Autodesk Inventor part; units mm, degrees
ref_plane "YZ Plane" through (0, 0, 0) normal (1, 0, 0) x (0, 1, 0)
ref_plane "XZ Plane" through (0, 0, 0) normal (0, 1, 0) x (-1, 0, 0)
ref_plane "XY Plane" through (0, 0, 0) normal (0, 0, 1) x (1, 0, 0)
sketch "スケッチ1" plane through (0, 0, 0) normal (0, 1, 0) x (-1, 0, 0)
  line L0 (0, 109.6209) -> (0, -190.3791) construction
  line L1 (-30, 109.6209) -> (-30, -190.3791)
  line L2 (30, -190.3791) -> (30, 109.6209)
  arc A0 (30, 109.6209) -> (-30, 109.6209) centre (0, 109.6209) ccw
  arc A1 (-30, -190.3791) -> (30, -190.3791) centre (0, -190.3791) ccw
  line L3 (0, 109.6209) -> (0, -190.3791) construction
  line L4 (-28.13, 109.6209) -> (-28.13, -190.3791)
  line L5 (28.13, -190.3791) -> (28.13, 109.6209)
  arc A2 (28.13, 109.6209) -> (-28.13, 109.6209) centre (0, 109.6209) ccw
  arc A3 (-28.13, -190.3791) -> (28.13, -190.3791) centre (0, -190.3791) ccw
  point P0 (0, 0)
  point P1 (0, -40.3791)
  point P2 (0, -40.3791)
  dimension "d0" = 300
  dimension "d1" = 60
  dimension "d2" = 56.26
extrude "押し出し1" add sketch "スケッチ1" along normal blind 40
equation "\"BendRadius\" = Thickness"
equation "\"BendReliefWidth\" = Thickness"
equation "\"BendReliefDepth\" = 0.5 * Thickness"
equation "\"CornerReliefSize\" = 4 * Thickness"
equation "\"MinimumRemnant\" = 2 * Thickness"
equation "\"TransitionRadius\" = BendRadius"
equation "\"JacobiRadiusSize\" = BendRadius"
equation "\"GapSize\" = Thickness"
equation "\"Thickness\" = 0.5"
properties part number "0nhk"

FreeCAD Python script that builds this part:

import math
import FreeCAD as App
import Part
import Sketcher
from FreeCAD import Vector

doc = App.newDocument("Part")
params = doc.addObject("Spreadsheet::Sheet", "Params")
for row, (alias, value) in enumerate([
    ("sketch1_radius", "30 mm"),
    ("sketch1_height", "300 mm"),
    ("sketch1_radius2", "28.13 mm"),
    ("pad1_length", "40 mm"),
], start=1):
    params.set(f"A{row}", alias)
    params.set(f"B{row}", "=" + value)
    params.setAlias(f"B{row}", alias)

body = doc.addObject("PartDesign::Body", "Body")

# Sketch on XZ plane
sketch1 = body.newObject("Sketcher::SketchObject", "Sketch")
sketch1.AttachmentSupport = (doc.getObject("XZ_Plane"), [""])
sketch1.MapMode = "FlatFace"
sketch1.addGeometry([
    Part.ArcOfCircle(Part.Circle(Vector(0, 110, 0), Vector(0, 0, 1), 30), math.radians(0), math.radians(180)),  # 0
    Part.LineSegment(Vector(30, 110, 0), Vector(30, -190, 0)),  # 1
    Part.ArcOfCircle(Part.Circle(Vector(0, -190, 0), Vector(0, 0, 1), 30), math.radians(180), math.radians(360)),  # 2
    Part.LineSegment(Vector(-30, -190, 0), Vector(-30, 110, 0)),  # 3
    Part.LineSegment(Vector(28, -190, 0), Vector(28, 110, 0)),  # 4
    Part.ArcOfCircle(Part.Circle(Vector(0, 110, 0), Vector(0, 0, 1), 28), math.radians(0), math.radians(180)),  # 5
    Part.LineSegment(Vector(-28, 110, 0), Vector(-28, -190, 0)),  # 6
    Part.ArcOfCircle(Part.Circle(Vector(0, -190, 0), Vector(0, 0, 1), 28), math.radians(180), math.radians(360)),  # 7
], False)
sketch1.addConstraint([
    Sketcher.Constraint("Tangent", 0, 1, 1, 1),
    Sketcher.Constraint("Tangent", 1, 2, 2, 2),
    Sketcher.Constraint("Tangent", 2, 1, 3, 1),
    Sketcher.Constraint("Tangent", 3, 2, 0, 2),
    Sketcher.Constraint("Tangent", 4, 2, 5, 1),
    Sketcher.Constraint("Tangent", 5, 2, 6, 1),
    Sketcher.Constraint("Tangent", 6, 2, 7, 1),
    Sketcher.Constraint("Tangent", 7, 2, 4, 1),
    Sketcher.Constraint("Vertical", 1),
    Sketcher.Constraint("Vertical", 3),
    Sketcher.Constraint("Vertical", 4),
    Sketcher.Constraint("Vertical", 6),
    Sketcher.Constraint("Coincident", 5, 3, 0, 3),
    Sketcher.Constraint("PointOnObject", 0, 3, -2),
    Sketcher.Constraint("Horizontal", 7, 3, 1, 2),
    Sketcher.Constraint("Radius", 0, 30.0),
    Sketcher.Constraint("DistanceY", 1, 2, 1, 1, 300.0),
    Sketcher.Constraint("Radius", 5, 28.13),
    Sketcher.Constraint("DistanceY", -1, 1, 0, 3, 109.621),
])
sketch1.setExpression("Constraints[15]", "Params.sketch1_radius")
sketch1.setExpression("Constraints[16]", "Params.sketch1_height")
sketch1.setExpression("Constraints[17]", "Params.sketch1_radius2")
pad1 = body.newObject("PartDesign::Pad", "Pad")
pad1.Profile = sketch1
pad1.setExpression("Length", "Params.pad1_length")
pad1.Reversed = True

doc.recompute()
